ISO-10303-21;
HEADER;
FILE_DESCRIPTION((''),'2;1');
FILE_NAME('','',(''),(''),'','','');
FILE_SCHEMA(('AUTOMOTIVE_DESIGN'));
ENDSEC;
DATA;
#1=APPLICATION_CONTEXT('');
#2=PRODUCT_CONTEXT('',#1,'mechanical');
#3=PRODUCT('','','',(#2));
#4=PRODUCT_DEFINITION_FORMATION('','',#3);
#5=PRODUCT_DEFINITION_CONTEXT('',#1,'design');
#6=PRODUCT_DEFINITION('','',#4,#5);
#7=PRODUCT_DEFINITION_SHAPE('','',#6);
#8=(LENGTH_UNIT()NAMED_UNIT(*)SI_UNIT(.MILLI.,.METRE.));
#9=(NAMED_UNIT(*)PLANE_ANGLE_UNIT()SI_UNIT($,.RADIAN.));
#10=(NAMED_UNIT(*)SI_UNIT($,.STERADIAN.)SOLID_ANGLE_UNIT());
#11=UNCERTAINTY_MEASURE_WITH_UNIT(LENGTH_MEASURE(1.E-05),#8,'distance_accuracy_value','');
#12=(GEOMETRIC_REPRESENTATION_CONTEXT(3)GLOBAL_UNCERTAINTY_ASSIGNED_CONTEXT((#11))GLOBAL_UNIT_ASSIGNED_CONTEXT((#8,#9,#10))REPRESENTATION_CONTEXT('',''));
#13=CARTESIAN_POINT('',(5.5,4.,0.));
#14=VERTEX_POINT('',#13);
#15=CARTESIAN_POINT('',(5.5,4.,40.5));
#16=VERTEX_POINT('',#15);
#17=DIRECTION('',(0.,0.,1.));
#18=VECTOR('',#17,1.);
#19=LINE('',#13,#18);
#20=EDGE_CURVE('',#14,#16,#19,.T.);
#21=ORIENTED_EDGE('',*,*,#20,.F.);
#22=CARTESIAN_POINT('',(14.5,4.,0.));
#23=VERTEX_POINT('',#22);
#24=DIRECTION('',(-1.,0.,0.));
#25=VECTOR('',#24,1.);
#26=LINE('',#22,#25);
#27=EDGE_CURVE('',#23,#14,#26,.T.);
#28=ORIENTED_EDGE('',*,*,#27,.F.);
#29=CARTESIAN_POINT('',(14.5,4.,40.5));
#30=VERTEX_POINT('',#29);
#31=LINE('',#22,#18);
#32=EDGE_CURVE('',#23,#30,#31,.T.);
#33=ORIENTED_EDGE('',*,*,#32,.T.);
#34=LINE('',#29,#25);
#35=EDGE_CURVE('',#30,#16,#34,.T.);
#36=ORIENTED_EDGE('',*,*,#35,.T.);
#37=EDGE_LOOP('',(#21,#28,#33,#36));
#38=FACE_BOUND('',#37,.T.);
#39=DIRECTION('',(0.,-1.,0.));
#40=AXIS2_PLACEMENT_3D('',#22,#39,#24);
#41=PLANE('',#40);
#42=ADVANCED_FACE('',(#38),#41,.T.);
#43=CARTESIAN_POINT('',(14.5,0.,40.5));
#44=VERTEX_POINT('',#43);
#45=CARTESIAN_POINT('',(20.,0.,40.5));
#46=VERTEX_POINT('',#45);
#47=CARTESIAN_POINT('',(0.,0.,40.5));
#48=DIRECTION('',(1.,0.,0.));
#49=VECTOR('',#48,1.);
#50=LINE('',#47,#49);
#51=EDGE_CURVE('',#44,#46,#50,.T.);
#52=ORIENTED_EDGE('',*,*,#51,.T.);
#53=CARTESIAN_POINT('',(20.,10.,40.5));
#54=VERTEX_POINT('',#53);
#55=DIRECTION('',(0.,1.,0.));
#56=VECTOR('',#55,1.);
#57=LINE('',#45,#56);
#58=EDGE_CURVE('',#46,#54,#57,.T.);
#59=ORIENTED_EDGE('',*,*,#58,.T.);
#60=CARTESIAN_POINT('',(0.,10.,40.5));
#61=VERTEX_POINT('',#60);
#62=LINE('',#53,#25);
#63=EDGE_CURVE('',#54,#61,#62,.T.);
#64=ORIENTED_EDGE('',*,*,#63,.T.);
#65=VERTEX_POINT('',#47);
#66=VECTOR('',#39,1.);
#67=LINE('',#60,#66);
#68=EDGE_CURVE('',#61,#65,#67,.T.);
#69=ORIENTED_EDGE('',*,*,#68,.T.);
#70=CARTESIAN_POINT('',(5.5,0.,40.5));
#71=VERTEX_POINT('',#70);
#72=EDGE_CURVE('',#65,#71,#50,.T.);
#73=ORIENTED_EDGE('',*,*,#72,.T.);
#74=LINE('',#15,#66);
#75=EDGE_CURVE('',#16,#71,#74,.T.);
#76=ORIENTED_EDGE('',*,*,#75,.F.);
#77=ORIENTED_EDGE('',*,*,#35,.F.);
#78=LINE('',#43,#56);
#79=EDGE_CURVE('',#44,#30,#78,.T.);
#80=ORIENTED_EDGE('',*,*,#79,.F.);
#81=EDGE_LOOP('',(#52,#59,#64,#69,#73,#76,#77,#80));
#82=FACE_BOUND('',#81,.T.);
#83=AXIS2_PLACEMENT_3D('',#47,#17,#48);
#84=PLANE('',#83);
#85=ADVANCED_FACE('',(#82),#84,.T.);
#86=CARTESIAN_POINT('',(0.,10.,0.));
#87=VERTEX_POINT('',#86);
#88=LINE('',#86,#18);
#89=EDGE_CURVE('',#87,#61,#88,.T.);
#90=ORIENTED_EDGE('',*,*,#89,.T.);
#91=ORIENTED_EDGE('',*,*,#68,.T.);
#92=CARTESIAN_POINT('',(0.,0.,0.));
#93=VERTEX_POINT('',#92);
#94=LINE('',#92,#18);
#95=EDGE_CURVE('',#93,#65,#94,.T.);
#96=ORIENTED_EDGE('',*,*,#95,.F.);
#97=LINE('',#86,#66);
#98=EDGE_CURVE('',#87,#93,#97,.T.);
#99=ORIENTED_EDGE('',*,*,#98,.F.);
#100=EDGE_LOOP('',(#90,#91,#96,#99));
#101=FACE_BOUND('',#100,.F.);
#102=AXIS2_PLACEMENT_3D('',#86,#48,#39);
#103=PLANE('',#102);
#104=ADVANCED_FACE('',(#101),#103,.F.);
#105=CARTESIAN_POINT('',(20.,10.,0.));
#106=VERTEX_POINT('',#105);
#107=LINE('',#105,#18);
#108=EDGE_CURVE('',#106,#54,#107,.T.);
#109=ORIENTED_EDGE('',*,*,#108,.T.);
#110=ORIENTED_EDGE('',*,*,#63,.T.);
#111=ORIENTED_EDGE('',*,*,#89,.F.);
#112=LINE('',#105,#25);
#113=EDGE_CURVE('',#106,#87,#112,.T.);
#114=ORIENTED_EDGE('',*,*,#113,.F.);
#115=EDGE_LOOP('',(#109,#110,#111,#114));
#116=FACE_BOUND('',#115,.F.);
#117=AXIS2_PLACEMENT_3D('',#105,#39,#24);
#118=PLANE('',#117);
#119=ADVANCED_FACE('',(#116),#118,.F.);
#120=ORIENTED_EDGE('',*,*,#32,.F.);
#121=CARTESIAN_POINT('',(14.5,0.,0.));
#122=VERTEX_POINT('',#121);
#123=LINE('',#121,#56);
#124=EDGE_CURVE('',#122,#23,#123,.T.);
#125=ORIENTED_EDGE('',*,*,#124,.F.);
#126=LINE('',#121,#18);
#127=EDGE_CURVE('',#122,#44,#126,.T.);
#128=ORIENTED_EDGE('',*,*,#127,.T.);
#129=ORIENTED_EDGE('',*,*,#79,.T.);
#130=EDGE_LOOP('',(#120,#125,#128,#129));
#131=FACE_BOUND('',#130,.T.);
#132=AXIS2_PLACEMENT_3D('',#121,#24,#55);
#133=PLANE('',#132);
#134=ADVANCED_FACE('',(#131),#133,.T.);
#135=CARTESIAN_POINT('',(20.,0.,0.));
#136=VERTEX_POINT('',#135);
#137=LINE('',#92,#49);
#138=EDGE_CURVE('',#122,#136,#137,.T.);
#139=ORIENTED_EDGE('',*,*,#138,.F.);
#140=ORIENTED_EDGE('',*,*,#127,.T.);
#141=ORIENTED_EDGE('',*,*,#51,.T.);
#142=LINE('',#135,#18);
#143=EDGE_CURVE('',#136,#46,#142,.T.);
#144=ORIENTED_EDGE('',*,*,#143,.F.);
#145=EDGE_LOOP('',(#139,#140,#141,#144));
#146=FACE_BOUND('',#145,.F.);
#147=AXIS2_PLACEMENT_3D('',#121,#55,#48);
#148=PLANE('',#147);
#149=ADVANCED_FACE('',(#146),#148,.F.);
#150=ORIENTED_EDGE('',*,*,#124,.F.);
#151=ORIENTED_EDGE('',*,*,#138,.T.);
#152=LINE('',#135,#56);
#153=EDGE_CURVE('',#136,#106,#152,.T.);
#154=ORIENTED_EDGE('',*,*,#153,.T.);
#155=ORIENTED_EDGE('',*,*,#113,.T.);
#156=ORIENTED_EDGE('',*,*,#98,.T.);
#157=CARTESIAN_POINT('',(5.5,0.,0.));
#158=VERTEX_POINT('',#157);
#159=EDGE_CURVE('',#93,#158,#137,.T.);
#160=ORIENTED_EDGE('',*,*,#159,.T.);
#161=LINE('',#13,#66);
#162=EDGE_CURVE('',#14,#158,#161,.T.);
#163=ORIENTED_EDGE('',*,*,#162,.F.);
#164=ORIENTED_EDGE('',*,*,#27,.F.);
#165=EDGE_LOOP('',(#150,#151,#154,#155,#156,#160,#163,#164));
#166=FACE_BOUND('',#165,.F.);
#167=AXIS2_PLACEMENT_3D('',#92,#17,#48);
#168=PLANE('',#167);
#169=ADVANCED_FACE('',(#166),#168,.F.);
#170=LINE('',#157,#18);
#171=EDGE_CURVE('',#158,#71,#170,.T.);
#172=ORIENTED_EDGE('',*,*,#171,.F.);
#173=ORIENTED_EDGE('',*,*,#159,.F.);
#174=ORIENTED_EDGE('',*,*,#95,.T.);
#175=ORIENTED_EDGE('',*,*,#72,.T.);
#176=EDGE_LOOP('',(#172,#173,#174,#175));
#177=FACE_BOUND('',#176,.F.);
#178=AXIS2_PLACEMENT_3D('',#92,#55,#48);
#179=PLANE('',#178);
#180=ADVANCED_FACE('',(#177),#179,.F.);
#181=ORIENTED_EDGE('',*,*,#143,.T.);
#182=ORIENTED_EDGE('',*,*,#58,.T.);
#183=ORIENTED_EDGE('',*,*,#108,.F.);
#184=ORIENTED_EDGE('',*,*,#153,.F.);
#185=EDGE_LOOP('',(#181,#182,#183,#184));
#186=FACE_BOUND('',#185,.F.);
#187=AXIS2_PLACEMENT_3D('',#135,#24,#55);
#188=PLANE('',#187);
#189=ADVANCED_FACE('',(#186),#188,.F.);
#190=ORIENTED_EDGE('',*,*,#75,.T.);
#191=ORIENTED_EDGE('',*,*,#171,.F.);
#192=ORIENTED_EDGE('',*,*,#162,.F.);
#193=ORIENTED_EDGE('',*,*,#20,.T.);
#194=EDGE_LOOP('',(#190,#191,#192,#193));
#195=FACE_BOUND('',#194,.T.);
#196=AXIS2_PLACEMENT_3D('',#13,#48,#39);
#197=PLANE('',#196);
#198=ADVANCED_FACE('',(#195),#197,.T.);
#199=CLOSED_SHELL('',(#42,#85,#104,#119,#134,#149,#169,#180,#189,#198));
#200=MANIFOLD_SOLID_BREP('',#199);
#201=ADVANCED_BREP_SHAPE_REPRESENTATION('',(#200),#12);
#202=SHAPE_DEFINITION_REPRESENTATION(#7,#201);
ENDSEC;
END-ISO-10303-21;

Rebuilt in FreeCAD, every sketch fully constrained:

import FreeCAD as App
import Part
import Sketcher
from FreeCAD import Vector
Q = App.Units.Quantity


def add_polygon(sketch, points):
    """Adds a closed chain of lines whose ends are joined by coincident constraints."""
    first, n = sketch.GeometryCount, len(points)
    for a, b in zip(points, points[1:] + points[:1]):
        sketch.addGeometry(Part.LineSegment(App.Vector(*a, 0), App.Vector(*b, 0)), False)
    for i in range(n):
        sketch.addConstraint(Sketcher.Constraint("Coincident", first + i, 2, first + (i + 1) % n, 1))

doc = App.newDocument("Part")
body = doc.addObject("PartDesign::Body", "Body")

sketch1 = body.newObject("Sketcher::SketchObject", "Sketch")
sketch1.AttachmentSupport = (doc.getObject("XY_Plane"), [""])
sketch1.MapMode = "FlatFace"
add_polygon(sketch1, [(0, 10), (0, 0), (5.5, 0), (5.5, 4), (14.5, 4), (14.5, 0), (20, 0), (20, 10)])
sketch1.addConstraint([
    Sketcher.Constraint("Vertical", 0),
    Sketcher.Constraint("Horizontal", 1),
    Sketcher.Constraint("Vertical", 2),
    Sketcher.Constraint("Horizontal", 3),
    Sketcher.Constraint("Vertical", 4),
    Sketcher.Constraint("Horizontal", 5),
    Sketcher.Constraint("Vertical", 6),
    Sketcher.Constraint("Horizontal", 7),
    Sketcher.Constraint("Coincident", 0, 2, -1, 1),
    Sketcher.Constraint("PointOnObject", 4, 2, -1),
    Sketcher.Constraint("Equal", 1, 5),
    Sketcher.Constraint("DistanceX", 3, 1, 3, 2, Q("9 mm")),
    Sketcher.Constraint("DistanceX", 7, 2, 7, 1, Q("20 mm")),
    Sketcher.Constraint("DistanceY", 0, 2, 0, 1, Q("10 mm")),
    Sketcher.Constraint("DistanceY", 2, 1, 2, 2, Q("4 mm")),
])
pad1 = body.newObject("PartDesign::Pad", "Pad")
pad1.Profile = sketch1
pad1.Length = 40.5

doc.recompute()
